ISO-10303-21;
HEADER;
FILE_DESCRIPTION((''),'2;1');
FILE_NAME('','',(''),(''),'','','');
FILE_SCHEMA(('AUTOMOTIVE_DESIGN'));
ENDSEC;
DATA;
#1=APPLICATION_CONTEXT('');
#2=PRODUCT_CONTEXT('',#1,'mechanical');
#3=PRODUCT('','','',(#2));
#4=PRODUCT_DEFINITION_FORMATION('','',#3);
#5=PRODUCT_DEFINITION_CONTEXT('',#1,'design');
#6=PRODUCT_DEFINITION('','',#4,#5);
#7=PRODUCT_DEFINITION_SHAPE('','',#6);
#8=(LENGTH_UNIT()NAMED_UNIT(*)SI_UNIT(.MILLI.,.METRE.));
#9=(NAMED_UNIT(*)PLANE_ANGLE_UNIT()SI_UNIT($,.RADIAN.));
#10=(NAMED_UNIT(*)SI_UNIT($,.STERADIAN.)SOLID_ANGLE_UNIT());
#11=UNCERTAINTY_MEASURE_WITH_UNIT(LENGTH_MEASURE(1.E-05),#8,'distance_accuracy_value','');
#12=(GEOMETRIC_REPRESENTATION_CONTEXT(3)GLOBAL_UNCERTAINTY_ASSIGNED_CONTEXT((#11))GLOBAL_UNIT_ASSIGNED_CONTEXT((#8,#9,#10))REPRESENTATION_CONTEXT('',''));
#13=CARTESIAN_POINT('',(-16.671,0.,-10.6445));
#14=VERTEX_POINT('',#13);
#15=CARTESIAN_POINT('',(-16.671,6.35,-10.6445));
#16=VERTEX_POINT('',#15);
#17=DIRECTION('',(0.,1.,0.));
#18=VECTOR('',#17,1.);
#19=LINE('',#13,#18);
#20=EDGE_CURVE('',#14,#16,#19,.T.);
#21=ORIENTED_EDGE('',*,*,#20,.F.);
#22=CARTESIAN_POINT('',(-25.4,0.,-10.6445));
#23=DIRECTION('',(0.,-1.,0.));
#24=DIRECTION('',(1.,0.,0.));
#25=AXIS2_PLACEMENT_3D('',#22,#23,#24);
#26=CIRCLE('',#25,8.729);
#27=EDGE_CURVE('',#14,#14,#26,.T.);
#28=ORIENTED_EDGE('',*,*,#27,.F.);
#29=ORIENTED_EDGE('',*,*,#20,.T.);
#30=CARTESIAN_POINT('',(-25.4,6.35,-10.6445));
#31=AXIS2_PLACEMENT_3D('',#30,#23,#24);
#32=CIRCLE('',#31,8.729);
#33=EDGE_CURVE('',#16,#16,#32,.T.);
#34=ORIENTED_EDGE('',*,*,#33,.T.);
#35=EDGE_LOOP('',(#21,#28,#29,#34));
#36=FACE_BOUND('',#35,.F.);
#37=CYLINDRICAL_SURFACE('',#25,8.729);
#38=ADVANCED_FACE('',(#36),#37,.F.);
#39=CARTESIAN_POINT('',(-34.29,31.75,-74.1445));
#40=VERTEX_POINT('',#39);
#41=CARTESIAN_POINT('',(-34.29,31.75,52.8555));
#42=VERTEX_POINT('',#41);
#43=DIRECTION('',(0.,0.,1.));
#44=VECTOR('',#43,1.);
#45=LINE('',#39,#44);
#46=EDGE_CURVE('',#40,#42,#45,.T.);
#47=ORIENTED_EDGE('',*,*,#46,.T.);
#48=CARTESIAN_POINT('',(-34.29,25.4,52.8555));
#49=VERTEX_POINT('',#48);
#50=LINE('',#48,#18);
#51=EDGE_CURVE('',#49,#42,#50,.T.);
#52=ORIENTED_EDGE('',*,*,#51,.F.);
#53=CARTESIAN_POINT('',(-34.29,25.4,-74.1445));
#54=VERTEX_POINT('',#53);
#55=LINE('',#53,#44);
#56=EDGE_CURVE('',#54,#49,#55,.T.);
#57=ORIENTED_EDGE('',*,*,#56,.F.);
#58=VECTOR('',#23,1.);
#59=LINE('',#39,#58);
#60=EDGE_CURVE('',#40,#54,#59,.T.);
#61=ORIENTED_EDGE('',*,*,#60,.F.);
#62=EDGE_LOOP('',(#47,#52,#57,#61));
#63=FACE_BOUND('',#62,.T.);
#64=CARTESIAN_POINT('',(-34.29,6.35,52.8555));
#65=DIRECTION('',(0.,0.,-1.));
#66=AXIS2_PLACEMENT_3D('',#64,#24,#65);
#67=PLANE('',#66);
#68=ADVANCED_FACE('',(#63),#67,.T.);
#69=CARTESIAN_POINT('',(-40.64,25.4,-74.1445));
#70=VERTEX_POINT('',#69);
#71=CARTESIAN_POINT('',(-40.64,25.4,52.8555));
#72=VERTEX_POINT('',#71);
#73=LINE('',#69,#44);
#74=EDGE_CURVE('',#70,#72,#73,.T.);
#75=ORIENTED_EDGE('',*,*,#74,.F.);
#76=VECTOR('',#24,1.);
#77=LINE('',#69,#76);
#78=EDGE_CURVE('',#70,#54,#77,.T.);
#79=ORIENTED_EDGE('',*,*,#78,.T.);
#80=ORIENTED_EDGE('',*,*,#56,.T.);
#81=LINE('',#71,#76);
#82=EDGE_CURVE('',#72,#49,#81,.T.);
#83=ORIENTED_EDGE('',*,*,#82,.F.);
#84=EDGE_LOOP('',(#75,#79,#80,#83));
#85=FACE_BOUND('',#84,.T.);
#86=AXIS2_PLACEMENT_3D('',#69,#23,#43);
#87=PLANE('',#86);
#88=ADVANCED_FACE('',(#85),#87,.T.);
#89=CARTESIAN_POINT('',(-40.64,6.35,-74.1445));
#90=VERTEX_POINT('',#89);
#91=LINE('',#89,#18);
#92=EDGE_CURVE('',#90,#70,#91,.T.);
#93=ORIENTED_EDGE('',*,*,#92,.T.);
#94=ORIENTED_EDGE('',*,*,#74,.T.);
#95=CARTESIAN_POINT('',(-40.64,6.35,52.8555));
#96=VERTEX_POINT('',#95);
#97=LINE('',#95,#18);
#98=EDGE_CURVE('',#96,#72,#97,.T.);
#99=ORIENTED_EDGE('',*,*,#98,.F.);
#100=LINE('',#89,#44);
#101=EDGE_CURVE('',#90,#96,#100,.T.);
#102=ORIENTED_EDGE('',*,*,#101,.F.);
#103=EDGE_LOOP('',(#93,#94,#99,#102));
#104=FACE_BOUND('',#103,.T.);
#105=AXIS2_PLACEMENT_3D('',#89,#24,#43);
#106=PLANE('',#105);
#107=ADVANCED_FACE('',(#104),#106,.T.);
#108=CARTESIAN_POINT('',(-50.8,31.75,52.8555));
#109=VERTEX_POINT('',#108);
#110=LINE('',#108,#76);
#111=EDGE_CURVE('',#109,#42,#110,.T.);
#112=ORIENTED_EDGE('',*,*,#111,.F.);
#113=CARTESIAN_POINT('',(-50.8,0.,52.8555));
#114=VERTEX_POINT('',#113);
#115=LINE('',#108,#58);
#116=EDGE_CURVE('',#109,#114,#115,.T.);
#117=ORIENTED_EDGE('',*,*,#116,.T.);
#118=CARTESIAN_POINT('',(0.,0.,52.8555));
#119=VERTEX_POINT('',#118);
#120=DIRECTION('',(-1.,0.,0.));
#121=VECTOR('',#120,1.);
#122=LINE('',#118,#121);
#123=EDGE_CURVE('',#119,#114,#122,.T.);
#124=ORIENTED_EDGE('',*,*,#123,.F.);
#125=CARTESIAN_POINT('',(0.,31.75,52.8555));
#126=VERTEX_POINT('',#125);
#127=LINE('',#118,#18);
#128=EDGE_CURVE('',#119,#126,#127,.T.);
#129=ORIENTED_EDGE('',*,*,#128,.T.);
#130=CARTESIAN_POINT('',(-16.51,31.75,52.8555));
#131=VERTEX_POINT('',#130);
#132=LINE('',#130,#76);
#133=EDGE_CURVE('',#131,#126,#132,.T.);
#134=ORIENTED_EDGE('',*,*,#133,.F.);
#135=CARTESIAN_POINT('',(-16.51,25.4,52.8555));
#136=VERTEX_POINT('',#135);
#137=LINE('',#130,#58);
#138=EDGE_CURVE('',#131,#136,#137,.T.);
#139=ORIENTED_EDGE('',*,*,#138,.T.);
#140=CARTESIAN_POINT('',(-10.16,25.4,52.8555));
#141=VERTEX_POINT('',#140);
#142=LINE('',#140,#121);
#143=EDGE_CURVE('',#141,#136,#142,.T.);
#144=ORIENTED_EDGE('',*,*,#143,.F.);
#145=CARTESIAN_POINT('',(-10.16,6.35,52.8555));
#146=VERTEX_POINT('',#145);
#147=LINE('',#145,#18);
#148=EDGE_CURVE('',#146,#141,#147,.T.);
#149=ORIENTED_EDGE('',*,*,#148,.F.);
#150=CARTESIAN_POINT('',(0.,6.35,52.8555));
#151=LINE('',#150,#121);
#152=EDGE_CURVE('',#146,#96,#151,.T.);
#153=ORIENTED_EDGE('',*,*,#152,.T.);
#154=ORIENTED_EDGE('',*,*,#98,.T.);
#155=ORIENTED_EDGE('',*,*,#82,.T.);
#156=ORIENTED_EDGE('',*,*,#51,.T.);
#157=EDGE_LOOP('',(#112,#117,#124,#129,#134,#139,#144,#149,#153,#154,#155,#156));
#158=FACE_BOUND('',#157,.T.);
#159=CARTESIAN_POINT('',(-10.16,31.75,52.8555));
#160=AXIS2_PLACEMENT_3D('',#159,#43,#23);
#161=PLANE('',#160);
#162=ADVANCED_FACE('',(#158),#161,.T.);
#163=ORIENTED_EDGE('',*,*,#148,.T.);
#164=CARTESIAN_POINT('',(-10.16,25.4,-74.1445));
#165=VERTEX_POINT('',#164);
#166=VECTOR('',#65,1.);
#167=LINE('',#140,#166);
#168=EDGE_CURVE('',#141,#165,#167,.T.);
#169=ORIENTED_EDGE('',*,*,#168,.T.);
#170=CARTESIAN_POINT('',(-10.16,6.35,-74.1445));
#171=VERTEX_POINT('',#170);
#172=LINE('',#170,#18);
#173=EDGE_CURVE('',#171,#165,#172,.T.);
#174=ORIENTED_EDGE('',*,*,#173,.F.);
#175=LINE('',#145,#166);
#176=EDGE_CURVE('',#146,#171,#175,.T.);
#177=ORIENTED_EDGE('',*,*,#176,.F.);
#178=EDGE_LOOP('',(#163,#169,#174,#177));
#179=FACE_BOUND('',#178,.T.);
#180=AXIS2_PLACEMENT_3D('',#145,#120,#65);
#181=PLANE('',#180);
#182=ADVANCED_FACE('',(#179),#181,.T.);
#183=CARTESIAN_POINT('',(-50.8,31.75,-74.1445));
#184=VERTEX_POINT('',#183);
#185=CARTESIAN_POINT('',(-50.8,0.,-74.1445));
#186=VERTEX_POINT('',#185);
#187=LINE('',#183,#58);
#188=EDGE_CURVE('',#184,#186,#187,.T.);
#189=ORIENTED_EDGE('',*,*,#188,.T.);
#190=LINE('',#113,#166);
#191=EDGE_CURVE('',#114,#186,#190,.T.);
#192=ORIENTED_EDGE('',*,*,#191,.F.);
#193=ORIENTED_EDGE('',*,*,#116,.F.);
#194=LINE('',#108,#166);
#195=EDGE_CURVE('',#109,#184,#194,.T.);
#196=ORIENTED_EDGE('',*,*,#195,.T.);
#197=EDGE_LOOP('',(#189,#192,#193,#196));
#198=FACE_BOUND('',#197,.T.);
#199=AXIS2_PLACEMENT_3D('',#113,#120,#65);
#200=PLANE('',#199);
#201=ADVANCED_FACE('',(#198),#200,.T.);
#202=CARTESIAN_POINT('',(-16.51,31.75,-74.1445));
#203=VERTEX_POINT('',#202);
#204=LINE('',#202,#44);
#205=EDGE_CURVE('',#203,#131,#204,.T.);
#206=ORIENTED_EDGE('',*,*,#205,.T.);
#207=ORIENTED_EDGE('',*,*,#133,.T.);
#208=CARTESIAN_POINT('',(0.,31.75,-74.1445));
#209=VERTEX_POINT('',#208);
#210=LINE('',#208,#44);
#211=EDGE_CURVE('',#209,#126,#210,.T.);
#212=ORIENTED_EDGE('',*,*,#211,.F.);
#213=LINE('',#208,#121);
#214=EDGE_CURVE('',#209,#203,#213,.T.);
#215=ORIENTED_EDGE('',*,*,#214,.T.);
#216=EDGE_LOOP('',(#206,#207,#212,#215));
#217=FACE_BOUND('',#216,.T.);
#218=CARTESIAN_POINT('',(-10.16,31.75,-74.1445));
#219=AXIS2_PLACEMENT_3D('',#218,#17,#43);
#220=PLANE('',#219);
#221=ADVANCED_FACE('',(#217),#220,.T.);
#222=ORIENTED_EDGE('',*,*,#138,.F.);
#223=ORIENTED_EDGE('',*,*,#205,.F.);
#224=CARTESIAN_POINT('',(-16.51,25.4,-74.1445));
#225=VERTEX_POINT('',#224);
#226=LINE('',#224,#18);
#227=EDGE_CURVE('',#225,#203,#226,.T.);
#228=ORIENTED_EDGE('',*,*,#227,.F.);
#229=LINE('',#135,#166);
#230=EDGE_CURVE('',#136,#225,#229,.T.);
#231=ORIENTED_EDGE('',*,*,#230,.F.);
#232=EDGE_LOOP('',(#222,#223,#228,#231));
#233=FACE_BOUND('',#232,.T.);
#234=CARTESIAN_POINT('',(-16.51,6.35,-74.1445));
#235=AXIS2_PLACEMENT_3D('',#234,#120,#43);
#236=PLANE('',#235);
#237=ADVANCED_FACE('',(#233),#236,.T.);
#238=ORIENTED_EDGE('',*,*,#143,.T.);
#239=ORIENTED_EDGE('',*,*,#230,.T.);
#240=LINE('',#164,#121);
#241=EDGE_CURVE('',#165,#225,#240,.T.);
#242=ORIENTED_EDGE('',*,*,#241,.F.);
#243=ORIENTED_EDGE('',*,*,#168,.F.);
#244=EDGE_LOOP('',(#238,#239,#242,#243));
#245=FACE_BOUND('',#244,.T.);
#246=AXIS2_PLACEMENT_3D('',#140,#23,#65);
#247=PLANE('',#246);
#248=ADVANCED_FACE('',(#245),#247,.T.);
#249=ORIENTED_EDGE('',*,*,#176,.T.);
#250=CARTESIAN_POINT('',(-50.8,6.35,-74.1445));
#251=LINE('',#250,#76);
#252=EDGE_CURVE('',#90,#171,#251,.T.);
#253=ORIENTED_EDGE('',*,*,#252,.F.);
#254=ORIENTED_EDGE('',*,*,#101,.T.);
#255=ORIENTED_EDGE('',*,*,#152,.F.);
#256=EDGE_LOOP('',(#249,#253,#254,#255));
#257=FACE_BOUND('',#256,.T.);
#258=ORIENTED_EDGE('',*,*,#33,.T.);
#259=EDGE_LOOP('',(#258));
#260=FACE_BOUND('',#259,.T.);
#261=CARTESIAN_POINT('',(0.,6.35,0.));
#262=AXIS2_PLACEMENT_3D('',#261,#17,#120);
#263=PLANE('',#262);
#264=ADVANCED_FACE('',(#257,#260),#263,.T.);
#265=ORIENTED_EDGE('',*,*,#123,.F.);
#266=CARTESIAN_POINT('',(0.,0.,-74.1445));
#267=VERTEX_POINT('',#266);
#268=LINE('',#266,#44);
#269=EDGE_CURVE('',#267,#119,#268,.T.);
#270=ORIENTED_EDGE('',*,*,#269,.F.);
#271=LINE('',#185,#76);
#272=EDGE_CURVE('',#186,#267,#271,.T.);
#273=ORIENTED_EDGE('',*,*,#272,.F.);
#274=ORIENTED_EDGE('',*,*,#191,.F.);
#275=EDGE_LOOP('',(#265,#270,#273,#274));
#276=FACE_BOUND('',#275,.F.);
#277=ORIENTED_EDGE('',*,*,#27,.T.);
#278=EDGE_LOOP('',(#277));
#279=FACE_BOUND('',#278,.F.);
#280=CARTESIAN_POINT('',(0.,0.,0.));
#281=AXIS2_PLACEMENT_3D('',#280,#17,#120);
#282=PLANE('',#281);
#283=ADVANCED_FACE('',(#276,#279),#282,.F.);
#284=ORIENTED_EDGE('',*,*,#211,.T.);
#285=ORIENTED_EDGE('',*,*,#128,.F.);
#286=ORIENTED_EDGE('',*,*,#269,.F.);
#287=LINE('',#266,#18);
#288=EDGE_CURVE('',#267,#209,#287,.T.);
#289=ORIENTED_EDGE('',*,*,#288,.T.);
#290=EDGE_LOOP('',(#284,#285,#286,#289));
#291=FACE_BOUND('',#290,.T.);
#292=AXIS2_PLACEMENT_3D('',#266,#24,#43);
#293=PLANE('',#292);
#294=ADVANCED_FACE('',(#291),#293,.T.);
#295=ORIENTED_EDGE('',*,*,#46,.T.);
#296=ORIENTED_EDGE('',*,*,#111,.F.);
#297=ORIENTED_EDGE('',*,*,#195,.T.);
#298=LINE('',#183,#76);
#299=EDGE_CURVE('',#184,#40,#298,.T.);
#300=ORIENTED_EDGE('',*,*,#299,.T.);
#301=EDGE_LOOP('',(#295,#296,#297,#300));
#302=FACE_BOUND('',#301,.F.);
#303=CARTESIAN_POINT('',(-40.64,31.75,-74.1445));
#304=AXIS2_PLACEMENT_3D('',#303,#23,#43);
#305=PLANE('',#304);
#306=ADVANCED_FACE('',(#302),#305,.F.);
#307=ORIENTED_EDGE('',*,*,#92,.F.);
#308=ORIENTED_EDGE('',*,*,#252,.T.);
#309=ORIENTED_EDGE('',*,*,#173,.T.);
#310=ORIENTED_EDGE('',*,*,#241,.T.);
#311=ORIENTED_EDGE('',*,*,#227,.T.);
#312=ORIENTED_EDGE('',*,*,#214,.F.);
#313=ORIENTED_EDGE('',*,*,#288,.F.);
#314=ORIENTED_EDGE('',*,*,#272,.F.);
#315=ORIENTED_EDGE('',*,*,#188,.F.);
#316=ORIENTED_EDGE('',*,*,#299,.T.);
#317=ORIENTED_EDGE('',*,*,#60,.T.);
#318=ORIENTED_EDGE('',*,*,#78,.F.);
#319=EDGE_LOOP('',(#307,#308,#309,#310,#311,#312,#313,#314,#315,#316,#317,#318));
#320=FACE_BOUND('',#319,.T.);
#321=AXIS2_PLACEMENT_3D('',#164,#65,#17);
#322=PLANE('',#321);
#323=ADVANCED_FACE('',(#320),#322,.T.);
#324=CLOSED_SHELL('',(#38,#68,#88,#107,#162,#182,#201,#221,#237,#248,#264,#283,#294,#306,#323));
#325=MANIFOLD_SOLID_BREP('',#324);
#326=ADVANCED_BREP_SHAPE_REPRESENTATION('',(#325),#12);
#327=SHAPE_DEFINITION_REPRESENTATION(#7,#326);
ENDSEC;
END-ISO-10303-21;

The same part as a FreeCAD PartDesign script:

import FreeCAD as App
import Part
import Sketcher
from FreeCAD import Vector
Q = App.Units.Quantity


def add_polygon(sketch, points):
    """Adds a closed chain of lines whose ends are joined by coincident constraints."""
    first, n = sketch.GeometryCount, len(points)
    for a, b in zip(points, points[1:] + points[:1]):
        sketch.addGeometry(Part.LineSegment(App.Vector(*a, 0), App.Vector(*b, 0)), False)
    for i in range(n):
        sketch.addConstraint(Sketcher.Constraint("Coincident", first + i, 2, first + (i + 1) % n, 1))

doc = App.newDocument("Part")
body = doc.addObject("PartDesign::Body", "Body")

sketch1 = doc.addObject("Sketcher::SketchObject", "Sketch")
body.addObject(sketch1)
sketch1.AttachmentSupport = (doc.XZ_Plane, [""])
sketch1.MapMode = "FlatFace"
add_polygon(sketch1, [(-50.8, 52.8555), (0, 52.8555), (0, -74.1445), (-50.8, -74.1445)])
sketch1.addConstraint(Sketcher.Constraint("Horizontal", 0))
sketch1.addConstraint(Sketcher.Constraint("Vertical", 1))
sketch1.addConstraint(Sketcher.Constraint("Horizontal", 2))
sketch1.addConstraint(Sketcher.Constraint("Vertical", 3))
sketch1.addConstraint(Sketcher.Constraint("PointOnObject", 0, 2, -2))
sketch1.addConstraint(Sketcher.Constraint("DistanceX", 0, 1, 0, 2, Q("2 in")))
sketch1.addConstraint(Sketcher.Constraint("DistanceY", 1, 2, 1, 1, Q("5 in")))
sketch1.addConstraint(Sketcher.Constraint("DistanceY", -1, 1, 0, 2, Q("52.8555 mm")))
pad1 = doc.addObject("PartDesign::Pad", "Pad")
body.addObject(pad1)
pad1.Profile = sketch1
pad1.Length = Q("0.25 in")
pad1.Reversed = True

sketch2 = doc.addObject("Sketcher::SketchObject", "Sketch001")
body.addObject(sketch2)
sketch2.AttachmentSupport = (doc.XZ_Plane, [""])
sketch2.MapMode = "FlatFace"
sketch2.AttachmentOffset = App.Placement(Vector(0, 0, -0.25 * 25.4), App.Rotation())
add_polygon(sketch2, [(-50.8, -74.1445), (-50.8, 52.8555), (-40.64, 52.8555), (-40.64, -74.1445)])
add_polygon(sketch2, [(-10.16, -74.1445), (-10.16, 52.8555), (0, 52.8555), (0, -74.1445)])
sketch2.addConstraint(Sketcher.Constraint("Vertical", 0))
sketch2.addConstraint(Sketcher.Constraint("Horizontal", 1))
sketch2.addConstraint(Sketcher.Constraint("Vertical", 2))
sketch2.addConstraint(Sketcher.Constraint("Horizontal", 3))
sketch2.addConstraint(Sketcher.Constraint("Vertical", 4))
sketch2.addConstraint(Sketcher.Constraint("Horizontal", 5))
sketch2.addConstraint(Sketcher.Constraint("Vertical", 6))
sketch2.addConstraint(Sketcher.Constraint("Horizontal", 7))
sketch2.addConstraint(Sketcher.Constraint("PointOnObject", 5, 2, -2))
sketch2.addConstraint(Sketcher.Constraint("Horizontal", 1, 2, 4, 2))
sketch2.addConstraint(Sketcher.Constraint("Horizontal", 3, 2, 6, 2))
sketch2.addConstraint(Sketcher.Constraint("Equal", 3, 5))
sketch2.addConstraint(Sketcher.Constraint("DistanceX", 1, 1, 1, 2, Q("0.4 in")))
sketch2.addConstraint(Sketcher.Constraint("DistanceY", 0, 1, 0, 2, Q("5 in")))
sketch2.addConstraint(Sketcher.Constraint("DistanceX", 0, 2, -1, 1, Q("2 in")))
sketch2.addConstraint(Sketcher.Constraint("DistanceY", -1, 1, 0, 2, Q("52.8555 mm")))
pad2 = doc.addObject("PartDesign::Pad", "Pad001")
body.addObject(pad2)
pad2.Profile = sketch2
pad2.Length = Q("1 in")
pad2.Reversed = True

sketch3 = doc.addObject("Sketcher::SketchObject", "Sketch002")
body.addObject(sketch3)
sketch3.AttachmentSupport = (doc.YZ_Plane, [""])
sketch3.MapMode = "FlatFace"
sketch3.AttachmentOffset = App.Placement(Vector(0, 0, -1.6 * 25.4), App.Rotation())
add_polygon(sketch3, [(25.4, -74.1445), (31.75, -74.1445), (31.75, 52.8555), (25.4, 52.8555)])
sketch3.addConstraint(Sketcher.Constraint("Horizontal", 0))
sketch3.addConstraint(Sketcher.Constraint("Vertical", 1))
sketch3.addConstraint(Sketcher.Constraint("Horizontal", 2))
sketch3.addConstraint(Sketcher.Constraint("Vertical", 3))
sketch3.addConstraint(Sketcher.Constraint("DistanceX", 0, 1, 0, 2, Q("0.25 in")))
sketch3.addConstraint(Sketcher.Constraint("DistanceY", 1, 1, 1, 2, Q("5 in")))
sketch3.addConstraint(Sketcher.Constraint("DistanceX", -1, 1, 2, 2, Q("1 in")))
sketch3.addConstraint(Sketcher.Constraint("DistanceY", 0, 2, -1, 1, Q("74.1445 mm")))
pad3 = doc.addObject("PartDesign::Pad", "Pad002")
body.addObject(pad3)
pad3.Profile = sketch3
pad3.Length = Q("0.25 in")

sketch4 = doc.addObject("Sketcher::SketchObject", "Sketch003")
body.addObject(sketch4)
sketch4.AttachmentSupport = (doc.YZ_Plane, [""])
sketch4.MapMode = "FlatFace"
sketch4.AttachmentOffset = App.Placement(Vector(0, 0, -0.4 * 25.4), App.Rotation())
add_polygon(sketch4, [(31.75, 52.8555), (31.75, -74.1445), (25.4, -74.1445), (25.4, 52.8555)])
sketch4.addConstraint(Sketcher.Constraint("Vertical", 0))
sketch4.addConstraint(Sketcher.Constraint("Horizontal", 1))
sketch4.addConstraint(Sketcher.Constraint("Vertical", 2))
sketch4.addConstraint(Sketcher.Constraint("Horizontal", 3))
sketch4.addConstraint(Sketcher.Constraint("DistanceY", 0, 2, 0, 1, Q("5 in")))
sketch4.addConstraint(Sketcher.Constraint("DistanceX", -1, 1, 1, 2, Q("1 in")))
sketch4.addConstraint(Sketcher.Constraint("DistanceX", 1, 2, 1, 1, Q("0.25 in")))
sketch4.addConstraint(Sketcher.Constraint("DistanceY", 0, 2, -1, 1, Q("74.1445 mm")))
pad4 = doc.addObject("PartDesign::Pad", "Pad003")
body.addObject(pad4)
pad4.Profile = sketch4
pad4.Length = Q("0.25 in")
pad4.Reversed = True

sketch5 = doc.addObject("Sketcher::SketchObject", "Sketch004")
body.addObject(sketch5)
sketch5.AttachmentSupport = (doc.XZ_Plane, [""])
sketch5.MapMode = "FlatFace"
sketch5.addGeometry(Part.Circle(Vector(-25.4, -10.6445, 0), Vector(0, 0, 1), 8.729), False)
sketch5.addConstraint(Sketcher.Constraint("DistanceX", 0, 3, -1, 1, Q("1 in")))
sketch5.addConstraint(Sketcher.Constraint("Diameter", 0, Q("17.458 mm")))
sketch5.addConstraint(Sketcher.Constraint("DistanceY", 0, 3, -1, 1, Q("10.6445 mm")))
pocket1 = doc.addObject("PartDesign::Pocket", "Pocket")
body.addObject(pocket1)
pocket1.Profile = sketch5
pocket1.Length = Q("0.25 in")

doc.recompute()
